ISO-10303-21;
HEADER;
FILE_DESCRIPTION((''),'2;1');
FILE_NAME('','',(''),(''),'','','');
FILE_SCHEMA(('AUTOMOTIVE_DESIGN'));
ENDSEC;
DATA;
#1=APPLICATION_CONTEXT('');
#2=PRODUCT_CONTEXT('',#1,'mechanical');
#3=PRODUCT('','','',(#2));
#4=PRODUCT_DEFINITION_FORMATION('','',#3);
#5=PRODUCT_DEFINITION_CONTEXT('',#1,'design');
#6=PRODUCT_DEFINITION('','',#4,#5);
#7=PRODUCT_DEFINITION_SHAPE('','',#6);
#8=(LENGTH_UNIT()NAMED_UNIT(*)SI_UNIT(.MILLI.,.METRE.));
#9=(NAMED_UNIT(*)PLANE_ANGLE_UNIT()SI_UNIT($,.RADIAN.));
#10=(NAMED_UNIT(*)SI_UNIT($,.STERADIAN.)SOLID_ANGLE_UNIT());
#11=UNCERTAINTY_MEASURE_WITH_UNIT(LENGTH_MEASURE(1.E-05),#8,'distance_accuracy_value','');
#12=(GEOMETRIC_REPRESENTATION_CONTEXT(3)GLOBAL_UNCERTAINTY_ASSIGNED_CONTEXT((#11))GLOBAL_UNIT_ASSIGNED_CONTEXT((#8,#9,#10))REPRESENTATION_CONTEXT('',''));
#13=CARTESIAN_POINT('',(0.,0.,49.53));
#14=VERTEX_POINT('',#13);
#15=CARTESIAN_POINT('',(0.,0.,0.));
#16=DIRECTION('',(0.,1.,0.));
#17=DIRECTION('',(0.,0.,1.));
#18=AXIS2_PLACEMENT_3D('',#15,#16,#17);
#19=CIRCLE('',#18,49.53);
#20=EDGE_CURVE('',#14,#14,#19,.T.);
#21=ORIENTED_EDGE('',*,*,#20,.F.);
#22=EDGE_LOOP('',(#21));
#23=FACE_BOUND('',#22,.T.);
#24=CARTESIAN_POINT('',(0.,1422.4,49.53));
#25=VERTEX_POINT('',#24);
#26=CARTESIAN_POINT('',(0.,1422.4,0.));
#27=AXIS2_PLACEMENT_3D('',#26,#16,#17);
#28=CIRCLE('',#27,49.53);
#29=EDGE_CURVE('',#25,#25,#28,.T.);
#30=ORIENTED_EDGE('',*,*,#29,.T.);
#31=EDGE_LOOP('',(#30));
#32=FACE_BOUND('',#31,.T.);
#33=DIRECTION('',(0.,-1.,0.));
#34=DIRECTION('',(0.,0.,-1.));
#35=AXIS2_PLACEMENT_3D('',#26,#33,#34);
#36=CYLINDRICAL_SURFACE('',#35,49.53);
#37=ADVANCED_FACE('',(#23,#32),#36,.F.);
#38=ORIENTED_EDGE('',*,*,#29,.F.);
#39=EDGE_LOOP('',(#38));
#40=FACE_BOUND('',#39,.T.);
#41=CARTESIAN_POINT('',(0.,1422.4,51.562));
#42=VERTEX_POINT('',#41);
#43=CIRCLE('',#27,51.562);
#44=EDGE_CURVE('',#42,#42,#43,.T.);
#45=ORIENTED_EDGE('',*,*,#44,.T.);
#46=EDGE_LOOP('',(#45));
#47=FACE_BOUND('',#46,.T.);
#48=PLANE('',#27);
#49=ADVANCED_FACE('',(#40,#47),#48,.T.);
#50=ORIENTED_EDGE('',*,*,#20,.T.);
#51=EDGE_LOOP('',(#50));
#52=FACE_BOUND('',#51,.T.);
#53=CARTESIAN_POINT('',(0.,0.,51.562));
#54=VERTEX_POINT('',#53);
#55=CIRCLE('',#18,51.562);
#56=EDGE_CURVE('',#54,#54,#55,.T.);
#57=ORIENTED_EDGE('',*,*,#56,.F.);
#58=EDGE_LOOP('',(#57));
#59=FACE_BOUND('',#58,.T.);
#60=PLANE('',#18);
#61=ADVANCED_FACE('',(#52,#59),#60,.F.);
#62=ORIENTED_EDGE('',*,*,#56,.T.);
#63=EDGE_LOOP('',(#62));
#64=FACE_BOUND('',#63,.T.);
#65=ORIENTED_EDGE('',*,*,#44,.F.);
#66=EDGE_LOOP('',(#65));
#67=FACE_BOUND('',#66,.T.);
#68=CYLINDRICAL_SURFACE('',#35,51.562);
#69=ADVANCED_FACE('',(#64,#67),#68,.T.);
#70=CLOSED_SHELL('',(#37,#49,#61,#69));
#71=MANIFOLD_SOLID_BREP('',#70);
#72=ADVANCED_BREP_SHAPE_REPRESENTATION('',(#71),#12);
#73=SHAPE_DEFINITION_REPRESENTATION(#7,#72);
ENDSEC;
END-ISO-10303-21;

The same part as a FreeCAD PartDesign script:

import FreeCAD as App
import Part
import Sketcher
from FreeCAD import Vector
Q = App.Units.Quantity

doc = App.newDocument("Part")
body = doc.addObject("PartDesign::Body", "Body")

sketch1 = body.newObject("Sketcher::SketchObject", "Sketch")
sketch1.AttachmentSupport = (doc.getObject("XZ_Plane"), [""])
sketch1.MapMode = "FlatFace"
sketch1.addGeometry([
    Part.Circle(Vector(0, 0, 0), Vector(0, 0, 1), 52),
    Part.Circle(Vector(0, 0, 0), Vector(0, 0, 1), 50),
], False)
sketch1.addConstraint([
    Sketcher.Constraint("Coincident", 0, 3, -1, 1),
    Sketcher.Constraint("Coincident", 1, 3, -1, 1),
    Sketcher.Constraint("Diameter", 1, Q("3.9 in")),
    Sketcher.Constraint("Diameter", 0, Q("4.06 in")),
])
pad1 = body.newObject("PartDesign::Pad", "Pad")
pad1.Profile = sketch1
pad1.Length = Q("56 in")
pad1.Reversed = True

doc.recompute()
